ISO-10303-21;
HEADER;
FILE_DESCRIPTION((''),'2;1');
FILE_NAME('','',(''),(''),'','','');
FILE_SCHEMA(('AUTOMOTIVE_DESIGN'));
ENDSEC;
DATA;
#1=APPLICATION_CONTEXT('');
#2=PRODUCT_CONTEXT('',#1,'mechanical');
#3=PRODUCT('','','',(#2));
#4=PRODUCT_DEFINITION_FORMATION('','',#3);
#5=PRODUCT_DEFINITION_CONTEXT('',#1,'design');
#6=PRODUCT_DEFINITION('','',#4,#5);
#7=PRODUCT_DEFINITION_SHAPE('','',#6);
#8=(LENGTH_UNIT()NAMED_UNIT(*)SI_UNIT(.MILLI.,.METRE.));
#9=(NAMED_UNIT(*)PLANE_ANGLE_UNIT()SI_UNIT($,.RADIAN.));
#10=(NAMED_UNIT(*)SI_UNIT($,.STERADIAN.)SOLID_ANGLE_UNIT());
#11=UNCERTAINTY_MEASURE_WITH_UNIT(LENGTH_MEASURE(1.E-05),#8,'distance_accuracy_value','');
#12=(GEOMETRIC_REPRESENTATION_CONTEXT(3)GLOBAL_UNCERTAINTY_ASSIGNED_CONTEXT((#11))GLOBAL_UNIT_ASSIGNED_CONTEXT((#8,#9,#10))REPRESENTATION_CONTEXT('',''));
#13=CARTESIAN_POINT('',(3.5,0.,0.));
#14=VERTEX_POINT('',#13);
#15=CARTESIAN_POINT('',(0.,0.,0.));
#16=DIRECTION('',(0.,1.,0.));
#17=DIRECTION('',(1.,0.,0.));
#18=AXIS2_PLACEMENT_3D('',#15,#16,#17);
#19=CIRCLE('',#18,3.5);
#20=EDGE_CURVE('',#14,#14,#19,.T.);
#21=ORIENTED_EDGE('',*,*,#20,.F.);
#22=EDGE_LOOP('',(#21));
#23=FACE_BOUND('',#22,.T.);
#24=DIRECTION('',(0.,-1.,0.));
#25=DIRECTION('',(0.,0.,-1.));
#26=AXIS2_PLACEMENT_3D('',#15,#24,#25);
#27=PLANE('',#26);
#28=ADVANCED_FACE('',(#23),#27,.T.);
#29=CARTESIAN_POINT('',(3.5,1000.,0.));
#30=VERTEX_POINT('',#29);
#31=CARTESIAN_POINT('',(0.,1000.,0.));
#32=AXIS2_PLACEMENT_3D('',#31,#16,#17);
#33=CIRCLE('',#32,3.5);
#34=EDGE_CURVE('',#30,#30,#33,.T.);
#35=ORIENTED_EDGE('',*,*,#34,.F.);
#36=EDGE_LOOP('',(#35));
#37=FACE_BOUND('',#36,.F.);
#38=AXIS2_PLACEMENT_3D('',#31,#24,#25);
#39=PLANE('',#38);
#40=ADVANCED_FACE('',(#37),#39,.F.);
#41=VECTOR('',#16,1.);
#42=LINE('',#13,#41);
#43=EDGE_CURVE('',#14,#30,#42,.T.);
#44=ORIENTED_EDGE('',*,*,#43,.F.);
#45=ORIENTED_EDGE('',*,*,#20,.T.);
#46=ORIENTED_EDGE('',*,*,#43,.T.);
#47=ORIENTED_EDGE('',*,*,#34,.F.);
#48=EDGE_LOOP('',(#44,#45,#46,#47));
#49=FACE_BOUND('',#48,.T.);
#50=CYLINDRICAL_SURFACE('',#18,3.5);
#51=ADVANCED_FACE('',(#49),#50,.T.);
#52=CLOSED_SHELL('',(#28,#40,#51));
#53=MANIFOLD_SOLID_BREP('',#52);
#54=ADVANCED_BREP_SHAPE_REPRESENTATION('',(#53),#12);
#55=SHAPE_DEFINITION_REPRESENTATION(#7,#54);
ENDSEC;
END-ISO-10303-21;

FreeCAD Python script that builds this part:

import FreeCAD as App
import Part
import Sketcher
from FreeCAD import Vector
Q = App.Units.Quantity

doc = App.newDocument("Part")
params = doc.addObject("Spreadsheet::Sheet", "Params")
for row, (alias, value) in enumerate([
    ("sketch1_diameter", "7 mm"),
    ("sketch2_height", "1000 mm"),
], start=1):
    params.set(f"A{row}", alias)
    params.set(f"B{row}", "=" + value)
    params.setAlias(f"B{row}", alias)

body = doc.addObject("PartDesign::Body", "Body")

sketch1 = doc.addObject("Sketcher::SketchObject", "Sketch")
body.addObject(sketch1)
sketch1.AttachmentSupport = (doc.XZ_Plane, [""])
sketch1.MapMode = "FlatFace"
sketch1.addGeometry(Part.Circle(Vector(0, 0, 0), Vector(0, 0, 1), 3.5), False)
sketch1.addConstraint([
    Sketcher.Constraint("Coincident", 0, 3, -1, 1),
    Sketcher.Constraint("Diameter", 0, Q("7 mm")),
])
sketch1.setExpression("Constraints[1]", "Params.sketch1_diameter")

sketch2 = doc.addObject("Sketcher::SketchObject", "Sketch001")
body.addObject(sketch2)
sketch2.AttachmentSupport = (doc.XY_Plane, [""])
sketch2.MapMode = "FlatFace"
sketch2.addGeometry(Part.LineSegment(Vector(0, 0, 0), Vector(0, 1000, 0)), False)
sketch2.addConstraint([
    Sketcher.Constraint("Vertical", 0),
    Sketcher.Constraint("Coincident", 0, 1, -1, 1),
    Sketcher.Constraint("DistanceY", 0, 1, 0, 2, Q("1000 mm")),
])
sketch2.setExpression("Constraints[2]", "Params.sketch2_height")
doc.recompute()

additivepipe = doc.addObject("PartDesign::AdditivePipe", "AdditivePipe")
body.addObject(additivepipe)
additivepipe.Profile = sketch1
additivepipe.Spine = (sketch2, ["Edge1"])

doc.recompute()
